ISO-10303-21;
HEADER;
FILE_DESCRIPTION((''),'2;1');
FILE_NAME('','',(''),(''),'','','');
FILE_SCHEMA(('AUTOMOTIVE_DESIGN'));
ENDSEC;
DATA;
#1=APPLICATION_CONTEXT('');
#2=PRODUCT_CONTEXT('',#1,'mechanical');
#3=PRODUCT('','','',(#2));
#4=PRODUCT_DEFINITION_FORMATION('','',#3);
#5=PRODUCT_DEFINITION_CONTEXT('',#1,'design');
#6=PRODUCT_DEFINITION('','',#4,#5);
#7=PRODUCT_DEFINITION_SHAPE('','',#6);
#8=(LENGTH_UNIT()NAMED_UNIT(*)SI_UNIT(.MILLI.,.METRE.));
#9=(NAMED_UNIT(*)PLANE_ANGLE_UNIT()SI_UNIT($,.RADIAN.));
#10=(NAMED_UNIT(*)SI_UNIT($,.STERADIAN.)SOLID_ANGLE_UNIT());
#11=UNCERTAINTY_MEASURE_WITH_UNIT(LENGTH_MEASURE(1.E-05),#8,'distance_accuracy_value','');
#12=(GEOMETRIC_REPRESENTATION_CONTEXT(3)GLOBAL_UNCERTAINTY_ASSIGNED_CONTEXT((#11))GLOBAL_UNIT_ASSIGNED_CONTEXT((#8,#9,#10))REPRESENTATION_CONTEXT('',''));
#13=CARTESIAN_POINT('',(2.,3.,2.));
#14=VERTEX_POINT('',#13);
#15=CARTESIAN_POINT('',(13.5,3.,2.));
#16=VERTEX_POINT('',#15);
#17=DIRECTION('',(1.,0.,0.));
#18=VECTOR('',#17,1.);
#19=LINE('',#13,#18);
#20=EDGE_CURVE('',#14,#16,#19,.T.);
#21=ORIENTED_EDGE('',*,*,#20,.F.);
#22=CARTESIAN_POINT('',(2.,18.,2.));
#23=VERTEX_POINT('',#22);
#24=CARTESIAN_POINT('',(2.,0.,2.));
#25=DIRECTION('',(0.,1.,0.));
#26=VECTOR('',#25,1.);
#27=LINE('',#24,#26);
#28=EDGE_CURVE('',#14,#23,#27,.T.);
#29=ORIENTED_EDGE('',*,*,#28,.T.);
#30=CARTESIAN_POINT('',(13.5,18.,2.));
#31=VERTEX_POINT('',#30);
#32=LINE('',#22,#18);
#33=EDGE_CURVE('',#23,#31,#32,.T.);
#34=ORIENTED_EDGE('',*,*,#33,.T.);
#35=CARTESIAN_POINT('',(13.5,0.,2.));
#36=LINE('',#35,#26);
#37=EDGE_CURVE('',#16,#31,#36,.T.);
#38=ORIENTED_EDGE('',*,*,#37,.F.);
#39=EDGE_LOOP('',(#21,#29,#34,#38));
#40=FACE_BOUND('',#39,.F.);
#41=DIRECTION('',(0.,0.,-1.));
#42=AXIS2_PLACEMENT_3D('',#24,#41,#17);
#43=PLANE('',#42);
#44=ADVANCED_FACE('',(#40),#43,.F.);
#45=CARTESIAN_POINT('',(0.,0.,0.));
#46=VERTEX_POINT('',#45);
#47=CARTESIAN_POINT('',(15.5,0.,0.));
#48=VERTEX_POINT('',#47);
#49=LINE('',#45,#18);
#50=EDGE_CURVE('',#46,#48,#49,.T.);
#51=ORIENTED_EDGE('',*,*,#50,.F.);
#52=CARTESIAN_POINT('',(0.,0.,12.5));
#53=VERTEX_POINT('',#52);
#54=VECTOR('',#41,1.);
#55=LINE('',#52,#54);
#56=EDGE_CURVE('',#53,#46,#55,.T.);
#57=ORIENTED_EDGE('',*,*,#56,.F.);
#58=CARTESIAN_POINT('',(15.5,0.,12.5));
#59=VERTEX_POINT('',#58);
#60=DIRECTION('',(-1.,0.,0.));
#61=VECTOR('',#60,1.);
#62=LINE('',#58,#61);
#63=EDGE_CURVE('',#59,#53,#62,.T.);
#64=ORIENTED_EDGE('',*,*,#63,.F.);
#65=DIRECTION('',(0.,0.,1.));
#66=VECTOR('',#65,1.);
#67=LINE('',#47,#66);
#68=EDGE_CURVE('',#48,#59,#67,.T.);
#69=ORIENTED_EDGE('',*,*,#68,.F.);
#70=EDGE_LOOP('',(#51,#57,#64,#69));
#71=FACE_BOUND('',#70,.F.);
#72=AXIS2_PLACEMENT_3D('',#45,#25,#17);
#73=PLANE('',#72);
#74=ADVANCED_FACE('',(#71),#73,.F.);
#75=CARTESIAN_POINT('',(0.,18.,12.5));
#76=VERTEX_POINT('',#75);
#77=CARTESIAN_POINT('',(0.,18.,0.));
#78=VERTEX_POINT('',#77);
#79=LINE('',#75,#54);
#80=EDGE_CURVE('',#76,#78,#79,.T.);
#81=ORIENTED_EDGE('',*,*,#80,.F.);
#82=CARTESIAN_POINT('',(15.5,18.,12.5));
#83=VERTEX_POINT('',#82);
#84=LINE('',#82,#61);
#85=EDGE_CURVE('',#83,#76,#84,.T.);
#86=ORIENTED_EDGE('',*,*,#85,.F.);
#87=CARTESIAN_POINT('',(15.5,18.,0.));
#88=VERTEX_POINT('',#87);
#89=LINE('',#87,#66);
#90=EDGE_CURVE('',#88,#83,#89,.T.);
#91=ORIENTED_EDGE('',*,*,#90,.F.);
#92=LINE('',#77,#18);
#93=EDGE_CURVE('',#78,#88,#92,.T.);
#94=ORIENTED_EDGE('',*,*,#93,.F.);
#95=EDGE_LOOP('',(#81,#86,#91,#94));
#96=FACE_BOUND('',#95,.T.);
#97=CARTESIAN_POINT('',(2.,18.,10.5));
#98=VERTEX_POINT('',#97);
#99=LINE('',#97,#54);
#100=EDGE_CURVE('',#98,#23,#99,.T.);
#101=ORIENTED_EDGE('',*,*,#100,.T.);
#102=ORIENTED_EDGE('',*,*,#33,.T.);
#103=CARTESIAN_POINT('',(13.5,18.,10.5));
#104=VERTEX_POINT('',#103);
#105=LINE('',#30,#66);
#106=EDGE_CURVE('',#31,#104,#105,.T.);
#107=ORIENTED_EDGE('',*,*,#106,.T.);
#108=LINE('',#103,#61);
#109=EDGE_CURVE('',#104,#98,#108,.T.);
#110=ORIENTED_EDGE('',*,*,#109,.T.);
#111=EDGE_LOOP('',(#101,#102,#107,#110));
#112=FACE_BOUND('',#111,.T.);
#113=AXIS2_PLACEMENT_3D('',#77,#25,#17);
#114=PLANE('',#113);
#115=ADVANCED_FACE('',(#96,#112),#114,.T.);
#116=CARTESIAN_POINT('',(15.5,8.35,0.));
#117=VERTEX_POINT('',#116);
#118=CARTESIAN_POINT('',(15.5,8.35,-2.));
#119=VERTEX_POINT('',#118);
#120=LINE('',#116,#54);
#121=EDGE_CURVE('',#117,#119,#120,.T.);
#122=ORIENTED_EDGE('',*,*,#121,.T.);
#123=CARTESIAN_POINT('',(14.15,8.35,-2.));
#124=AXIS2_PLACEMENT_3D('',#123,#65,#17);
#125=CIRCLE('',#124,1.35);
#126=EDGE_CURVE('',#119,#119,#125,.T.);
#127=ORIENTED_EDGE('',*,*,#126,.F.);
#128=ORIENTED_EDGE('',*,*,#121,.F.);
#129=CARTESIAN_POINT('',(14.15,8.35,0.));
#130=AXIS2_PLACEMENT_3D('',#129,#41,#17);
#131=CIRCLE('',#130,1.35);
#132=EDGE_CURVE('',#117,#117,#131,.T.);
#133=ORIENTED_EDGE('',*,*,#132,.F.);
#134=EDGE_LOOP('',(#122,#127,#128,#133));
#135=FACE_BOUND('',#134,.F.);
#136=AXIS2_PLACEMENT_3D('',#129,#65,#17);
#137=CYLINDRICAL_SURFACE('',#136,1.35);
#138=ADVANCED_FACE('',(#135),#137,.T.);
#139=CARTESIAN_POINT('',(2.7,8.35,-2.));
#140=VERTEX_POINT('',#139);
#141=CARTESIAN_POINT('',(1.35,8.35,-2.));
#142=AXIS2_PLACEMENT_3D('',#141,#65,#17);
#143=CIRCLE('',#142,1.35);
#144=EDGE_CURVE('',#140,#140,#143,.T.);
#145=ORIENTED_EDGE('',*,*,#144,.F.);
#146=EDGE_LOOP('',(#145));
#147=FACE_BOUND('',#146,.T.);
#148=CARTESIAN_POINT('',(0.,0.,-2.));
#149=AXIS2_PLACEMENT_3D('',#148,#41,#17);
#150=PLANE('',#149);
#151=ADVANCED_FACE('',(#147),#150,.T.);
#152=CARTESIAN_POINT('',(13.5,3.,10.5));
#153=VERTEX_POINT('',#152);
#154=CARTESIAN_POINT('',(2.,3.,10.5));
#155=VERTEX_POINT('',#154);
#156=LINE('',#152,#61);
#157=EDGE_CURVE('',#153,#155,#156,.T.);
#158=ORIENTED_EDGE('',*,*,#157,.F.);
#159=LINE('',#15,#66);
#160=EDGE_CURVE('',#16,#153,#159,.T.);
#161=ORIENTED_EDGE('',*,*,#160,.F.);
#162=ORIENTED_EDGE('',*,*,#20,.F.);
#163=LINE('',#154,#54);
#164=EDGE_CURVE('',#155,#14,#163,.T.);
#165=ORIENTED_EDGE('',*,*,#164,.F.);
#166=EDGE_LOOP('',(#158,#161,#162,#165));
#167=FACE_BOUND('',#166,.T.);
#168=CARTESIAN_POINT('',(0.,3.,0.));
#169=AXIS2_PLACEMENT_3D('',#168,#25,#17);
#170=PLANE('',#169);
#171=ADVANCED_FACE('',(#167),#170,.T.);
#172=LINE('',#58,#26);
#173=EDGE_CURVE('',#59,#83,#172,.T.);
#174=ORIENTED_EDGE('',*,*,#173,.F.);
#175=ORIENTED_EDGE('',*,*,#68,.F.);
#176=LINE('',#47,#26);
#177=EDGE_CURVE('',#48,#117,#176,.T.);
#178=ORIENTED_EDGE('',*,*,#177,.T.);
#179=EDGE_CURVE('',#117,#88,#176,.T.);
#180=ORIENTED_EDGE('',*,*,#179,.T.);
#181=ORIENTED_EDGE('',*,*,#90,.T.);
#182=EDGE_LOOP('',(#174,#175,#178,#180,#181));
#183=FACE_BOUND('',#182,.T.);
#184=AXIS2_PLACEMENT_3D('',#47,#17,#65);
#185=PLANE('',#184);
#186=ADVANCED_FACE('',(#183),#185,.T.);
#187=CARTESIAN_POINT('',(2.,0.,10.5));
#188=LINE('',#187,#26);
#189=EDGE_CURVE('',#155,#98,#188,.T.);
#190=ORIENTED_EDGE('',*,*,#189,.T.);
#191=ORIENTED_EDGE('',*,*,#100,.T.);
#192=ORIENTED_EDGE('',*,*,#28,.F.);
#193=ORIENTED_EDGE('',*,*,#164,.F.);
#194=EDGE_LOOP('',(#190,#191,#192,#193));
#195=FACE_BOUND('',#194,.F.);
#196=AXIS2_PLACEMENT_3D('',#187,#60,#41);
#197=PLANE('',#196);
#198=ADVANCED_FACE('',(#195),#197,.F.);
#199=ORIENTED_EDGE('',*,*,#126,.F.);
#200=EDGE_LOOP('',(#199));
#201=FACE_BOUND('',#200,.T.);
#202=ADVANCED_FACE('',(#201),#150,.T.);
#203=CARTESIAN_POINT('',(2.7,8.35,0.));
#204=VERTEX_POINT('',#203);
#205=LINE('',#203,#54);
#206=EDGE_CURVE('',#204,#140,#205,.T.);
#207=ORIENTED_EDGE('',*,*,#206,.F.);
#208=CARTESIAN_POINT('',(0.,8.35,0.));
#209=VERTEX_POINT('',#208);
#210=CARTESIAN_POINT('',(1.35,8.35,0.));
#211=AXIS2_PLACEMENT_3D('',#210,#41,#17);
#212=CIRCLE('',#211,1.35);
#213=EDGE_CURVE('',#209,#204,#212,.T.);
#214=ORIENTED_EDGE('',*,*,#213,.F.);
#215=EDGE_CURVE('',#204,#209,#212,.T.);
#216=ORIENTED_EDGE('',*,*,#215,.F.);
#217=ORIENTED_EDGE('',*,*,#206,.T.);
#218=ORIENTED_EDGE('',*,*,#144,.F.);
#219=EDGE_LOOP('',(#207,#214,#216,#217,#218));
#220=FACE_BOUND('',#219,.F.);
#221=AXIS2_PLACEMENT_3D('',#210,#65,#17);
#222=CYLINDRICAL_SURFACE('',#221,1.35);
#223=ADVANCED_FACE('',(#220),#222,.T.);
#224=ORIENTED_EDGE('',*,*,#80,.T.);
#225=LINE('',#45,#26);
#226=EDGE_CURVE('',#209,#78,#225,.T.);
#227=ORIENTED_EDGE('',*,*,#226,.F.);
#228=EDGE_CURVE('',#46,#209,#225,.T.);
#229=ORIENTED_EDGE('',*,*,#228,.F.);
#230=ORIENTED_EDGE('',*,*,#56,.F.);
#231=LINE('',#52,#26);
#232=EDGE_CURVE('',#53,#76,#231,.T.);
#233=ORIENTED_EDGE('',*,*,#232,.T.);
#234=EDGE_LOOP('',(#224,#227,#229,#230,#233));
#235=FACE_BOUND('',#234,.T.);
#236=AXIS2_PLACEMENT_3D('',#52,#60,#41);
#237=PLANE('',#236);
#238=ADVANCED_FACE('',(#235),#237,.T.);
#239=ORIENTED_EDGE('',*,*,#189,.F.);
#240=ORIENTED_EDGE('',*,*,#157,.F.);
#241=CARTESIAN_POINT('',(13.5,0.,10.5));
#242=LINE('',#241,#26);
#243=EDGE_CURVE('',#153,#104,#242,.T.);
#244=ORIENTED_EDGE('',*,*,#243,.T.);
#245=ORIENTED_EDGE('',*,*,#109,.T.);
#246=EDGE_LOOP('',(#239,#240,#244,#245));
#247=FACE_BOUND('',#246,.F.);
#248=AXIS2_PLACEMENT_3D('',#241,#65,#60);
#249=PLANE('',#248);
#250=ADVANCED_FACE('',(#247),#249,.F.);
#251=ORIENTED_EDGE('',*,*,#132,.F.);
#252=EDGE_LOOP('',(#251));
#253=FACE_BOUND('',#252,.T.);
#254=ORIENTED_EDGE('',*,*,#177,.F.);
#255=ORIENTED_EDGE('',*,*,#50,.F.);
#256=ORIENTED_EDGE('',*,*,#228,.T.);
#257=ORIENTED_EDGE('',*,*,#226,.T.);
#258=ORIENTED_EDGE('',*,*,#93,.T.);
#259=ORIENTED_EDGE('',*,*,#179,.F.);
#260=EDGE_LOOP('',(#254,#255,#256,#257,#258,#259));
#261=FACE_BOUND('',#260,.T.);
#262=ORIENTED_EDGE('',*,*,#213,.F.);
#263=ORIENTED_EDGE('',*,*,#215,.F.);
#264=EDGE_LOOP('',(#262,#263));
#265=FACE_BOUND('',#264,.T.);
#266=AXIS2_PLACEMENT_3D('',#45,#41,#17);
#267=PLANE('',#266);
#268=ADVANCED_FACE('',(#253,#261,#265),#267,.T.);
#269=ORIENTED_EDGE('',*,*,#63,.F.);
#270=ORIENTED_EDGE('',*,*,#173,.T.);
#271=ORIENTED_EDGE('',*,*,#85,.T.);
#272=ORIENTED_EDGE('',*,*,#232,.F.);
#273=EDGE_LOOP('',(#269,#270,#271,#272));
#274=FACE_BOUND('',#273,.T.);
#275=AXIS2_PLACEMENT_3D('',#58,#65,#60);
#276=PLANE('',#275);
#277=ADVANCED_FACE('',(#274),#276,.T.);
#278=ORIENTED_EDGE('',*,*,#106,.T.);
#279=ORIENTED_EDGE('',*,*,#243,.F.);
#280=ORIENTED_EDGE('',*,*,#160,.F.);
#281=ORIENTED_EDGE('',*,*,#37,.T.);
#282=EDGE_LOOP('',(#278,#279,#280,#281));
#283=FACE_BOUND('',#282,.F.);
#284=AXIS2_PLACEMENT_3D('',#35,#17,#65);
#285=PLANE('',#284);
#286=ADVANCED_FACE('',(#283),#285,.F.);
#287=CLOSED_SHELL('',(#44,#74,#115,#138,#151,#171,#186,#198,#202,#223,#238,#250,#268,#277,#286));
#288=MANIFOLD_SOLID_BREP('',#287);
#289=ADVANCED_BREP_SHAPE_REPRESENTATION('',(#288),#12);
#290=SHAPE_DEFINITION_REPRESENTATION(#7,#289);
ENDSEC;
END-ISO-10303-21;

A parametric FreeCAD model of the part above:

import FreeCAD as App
import Part
import Sketcher
from FreeCAD import Vector
Q = App.Units.Quantity

doc = App.newDocument("Part")
body = doc.addObject("PartDesign::Body", "Body")

# Sketch on XZ plane
sketch1 = body.newObject("Sketcher::SketchObject", "Sketch")
sketch1.AttachmentSupport = (doc.getObject("XZ_Plane"), [""])
sketch1.MapMode = "FlatFace"
sketch1.addGeometry(Part.LineSegment(Vector(16, 0, 0), Vector(0, 0, 0)), False)
sketch1.addGeometry(Part.LineSegment(Vector(0, 0, 0), Vector(0, 12, 0)), False)
sketch1.addGeometry(Part.LineSegment(Vector(0, 12, 0), Vector(16, 12, 0)), False)
sketch1.addGeometry(Part.LineSegment(Vector(16, 12, 0), Vector(16, 0, 0)), False)
sketch1.addGeometry(Part.LineSegment(Vector(2, 10, 0), Vector(2, 2, 0)), False)
sketch1.addGeometry(Part.LineSegment(Vector(2, 2, 0), Vector(14, 2, 0)), False)
sketch1.addGeometry(Part.LineSegment(Vector(14, 2, 0), Vector(14, 10, 0)), False)
sketch1.addGeometry(Part.LineSegment(Vector(14, 10, 0), Vector(2, 10, 0)), False)
sketch1.addConstraint(Sketcher.Constraint("Coincident", 0, 2, 1, 1))
sketch1.addConstraint(Sketcher.Constraint("Coincident", 1, 2, 2, 1))
sketch1.addConstraint(Sketcher.Constraint("Coincident", 2, 2, 3, 1))
sketch1.addConstraint(Sketcher.Constraint("Coincident", 3, 2, 0, 1))
sketch1.addConstraint(Sketcher.Constraint("Coincident", 4, 2, 5, 1))
sketch1.addConstraint(Sketcher.Constraint("Coincident", 5, 2, 6, 1))
sketch1.addConstraint(Sketcher.Constraint("Coincident", 6, 2, 7, 1))
sketch1.addConstraint(Sketcher.Constraint("Coincident", 7, 2, 4, 1))
sketch1.addConstraint(Sketcher.Constraint("Horizontal", 0))
sketch1.addConstraint(Sketcher.Constraint("Vertical", 1))
sketch1.addConstraint(Sketcher.Constraint("Horizontal", 2))
sketch1.addConstraint(Sketcher.Constraint("Vertical", 3))
sketch1.addConstraint(Sketcher.Constraint("Vertical", 4))
sketch1.addConstraint(Sketcher.Constraint("Horizontal", 5))
sketch1.addConstraint(Sketcher.Constraint("Vertical", 6))
sketch1.addConstraint(Sketcher.Constraint("Horizontal", 7))
sketch1.addConstraint(Sketcher.Constraint("Coincident", 0, 2, -1, 1))
sketch1.addConstraint(Sketcher.Constraint("DistanceX", 0, 2, 0, 1, Q("15.5 mm")))
sketch1.addConstraint(Sketcher.Constraint("DistanceY", 1, 1, 1, 2, Q("12.5 mm")))
sketch1.addConstraint(Sketcher.Constraint("DistanceX", -1, 1, 4, 2, Q("2 mm")))
sketch1.addConstraint(Sketcher.Constraint("DistanceY", -1, 1, 4, 2, Q("2 mm")))
sketch1.addConstraint(Sketcher.Constraint("DistanceX", 5, 2, 3, 2, Q("2 mm")))
sketch1.addConstraint(Sketcher.Constraint("DistanceY", 6, 2, 2, 2, Q("2 mm")))
pad1 = body.newObject("PartDesign::Pad", "Pad")
pad1.Profile = sketch1
pad1.Length = 18
pad1.Reversed = True

# Sketch on XZ plane
sketch2 = body.newObject("Sketcher::SketchObject", "Sketch001")
sketch2.AttachmentSupport = (doc.getObject("XZ_Plane"), [""])
sketch2.MapMode = "FlatFace"
sketch2.addGeometry(Part.LineSegment(Vector(14, 2, 0), Vector(2, 2, 0)), False)
sketch2.addGeometry(Part.LineSegment(Vector(2, 2, 0), Vector(2, 10, 0)), False)
sketch2.addGeometry(Part.LineSegment(Vector(2, 10, 0), Vector(14, 10, 0)), False)
sketch2.addGeometry(Part.LineSegment(Vector(14, 10, 0), Vector(14, 2, 0)), False)
sketch2.addConstraint(Sketcher.Constraint("Coincident", 0, 2, 1, 1))
sketch2.addConstraint(Sketcher.Constraint("Coincident", 1, 2, 2, 1))
sketch2.addConstraint(Sketcher.Constraint("Coincident", 2, 2, 3, 1))
sketch2.addConstraint(Sketcher.Constraint("Coincident", 3, 2, 0, 1))
sketch2.addConstraint(Sketcher.Constraint("Horizontal", 0))
sketch2.addConstraint(Sketcher.Constraint("Vertical", 1))
sketch2.addConstraint(Sketcher.Constraint("Horizontal", 2))
sketch2.addConstraint(Sketcher.Constraint("Vertical", 3))
sketch2.addConstraint(Sketcher.Constraint("DistanceX", -1, 1, 0, 2, Q("2 mm")))
sketch2.addConstraint(Sketcher.Constraint("DistanceY", -1, 1, 0, 2, Q("2 mm")))
sketch2.addConstraint(Sketcher.Constraint("DistanceX", 0, 2, 0, 1, Q("11.5 mm")))
sketch2.addConstraint(Sketcher.Constraint("DistanceY", 1, 1, 1, 2, Q("8.5 mm")))
pad2 = body.newObject("PartDesign::Pad", "Pad001")
pad2.Profile = sketch2
pad2.Length = 3
pad2.Reversed = True

# Sketch on XY plane
sketch3 = body.newObject("Sketcher::SketchObject", "Sketch002")
sketch3.AttachmentSupport = (doc.getObject("XY_Plane"), [""])
sketch3.MapMode = "FlatFace"
sketch3.addGeometry(Part.Circle(Vector(14.2, 8.3, 0), Vector(0, 0, 1), 1.4), False)
sketch3.addGeometry(Part.Circle(Vector(1.4, 8.3, 0), Vector(0, 0, 1), 1.4), False)
sketch3.addConstraint(Sketcher.Constraint("Equal", 0, 1))
sketch3.addConstraint(Sketcher.Constraint("Horizontal", 0, 3, 1, 3))
sketch3.addConstraint(Sketcher.Constraint("Diameter", 0, Q("2.7 mm")))
sketch3.addConstraint(Sketcher.Constraint("DistanceX", -1, 1, 1, 3, Q("1.35 mm")))
sketch3.addConstraint(Sketcher.Constraint("DistanceX", 1, 3, 0, 3, Q("12.8 mm")))
sketch3.addConstraint(Sketcher.Constraint("DistanceY", -1, 1, 0, 3, Q("8.35 mm")))
pad3 = body.newObject("PartDesign::Pad", "Pad002")
pad3.Profile = sketch3
pad3.Length = 2
pad3.Reversed = True

doc.recompute()
